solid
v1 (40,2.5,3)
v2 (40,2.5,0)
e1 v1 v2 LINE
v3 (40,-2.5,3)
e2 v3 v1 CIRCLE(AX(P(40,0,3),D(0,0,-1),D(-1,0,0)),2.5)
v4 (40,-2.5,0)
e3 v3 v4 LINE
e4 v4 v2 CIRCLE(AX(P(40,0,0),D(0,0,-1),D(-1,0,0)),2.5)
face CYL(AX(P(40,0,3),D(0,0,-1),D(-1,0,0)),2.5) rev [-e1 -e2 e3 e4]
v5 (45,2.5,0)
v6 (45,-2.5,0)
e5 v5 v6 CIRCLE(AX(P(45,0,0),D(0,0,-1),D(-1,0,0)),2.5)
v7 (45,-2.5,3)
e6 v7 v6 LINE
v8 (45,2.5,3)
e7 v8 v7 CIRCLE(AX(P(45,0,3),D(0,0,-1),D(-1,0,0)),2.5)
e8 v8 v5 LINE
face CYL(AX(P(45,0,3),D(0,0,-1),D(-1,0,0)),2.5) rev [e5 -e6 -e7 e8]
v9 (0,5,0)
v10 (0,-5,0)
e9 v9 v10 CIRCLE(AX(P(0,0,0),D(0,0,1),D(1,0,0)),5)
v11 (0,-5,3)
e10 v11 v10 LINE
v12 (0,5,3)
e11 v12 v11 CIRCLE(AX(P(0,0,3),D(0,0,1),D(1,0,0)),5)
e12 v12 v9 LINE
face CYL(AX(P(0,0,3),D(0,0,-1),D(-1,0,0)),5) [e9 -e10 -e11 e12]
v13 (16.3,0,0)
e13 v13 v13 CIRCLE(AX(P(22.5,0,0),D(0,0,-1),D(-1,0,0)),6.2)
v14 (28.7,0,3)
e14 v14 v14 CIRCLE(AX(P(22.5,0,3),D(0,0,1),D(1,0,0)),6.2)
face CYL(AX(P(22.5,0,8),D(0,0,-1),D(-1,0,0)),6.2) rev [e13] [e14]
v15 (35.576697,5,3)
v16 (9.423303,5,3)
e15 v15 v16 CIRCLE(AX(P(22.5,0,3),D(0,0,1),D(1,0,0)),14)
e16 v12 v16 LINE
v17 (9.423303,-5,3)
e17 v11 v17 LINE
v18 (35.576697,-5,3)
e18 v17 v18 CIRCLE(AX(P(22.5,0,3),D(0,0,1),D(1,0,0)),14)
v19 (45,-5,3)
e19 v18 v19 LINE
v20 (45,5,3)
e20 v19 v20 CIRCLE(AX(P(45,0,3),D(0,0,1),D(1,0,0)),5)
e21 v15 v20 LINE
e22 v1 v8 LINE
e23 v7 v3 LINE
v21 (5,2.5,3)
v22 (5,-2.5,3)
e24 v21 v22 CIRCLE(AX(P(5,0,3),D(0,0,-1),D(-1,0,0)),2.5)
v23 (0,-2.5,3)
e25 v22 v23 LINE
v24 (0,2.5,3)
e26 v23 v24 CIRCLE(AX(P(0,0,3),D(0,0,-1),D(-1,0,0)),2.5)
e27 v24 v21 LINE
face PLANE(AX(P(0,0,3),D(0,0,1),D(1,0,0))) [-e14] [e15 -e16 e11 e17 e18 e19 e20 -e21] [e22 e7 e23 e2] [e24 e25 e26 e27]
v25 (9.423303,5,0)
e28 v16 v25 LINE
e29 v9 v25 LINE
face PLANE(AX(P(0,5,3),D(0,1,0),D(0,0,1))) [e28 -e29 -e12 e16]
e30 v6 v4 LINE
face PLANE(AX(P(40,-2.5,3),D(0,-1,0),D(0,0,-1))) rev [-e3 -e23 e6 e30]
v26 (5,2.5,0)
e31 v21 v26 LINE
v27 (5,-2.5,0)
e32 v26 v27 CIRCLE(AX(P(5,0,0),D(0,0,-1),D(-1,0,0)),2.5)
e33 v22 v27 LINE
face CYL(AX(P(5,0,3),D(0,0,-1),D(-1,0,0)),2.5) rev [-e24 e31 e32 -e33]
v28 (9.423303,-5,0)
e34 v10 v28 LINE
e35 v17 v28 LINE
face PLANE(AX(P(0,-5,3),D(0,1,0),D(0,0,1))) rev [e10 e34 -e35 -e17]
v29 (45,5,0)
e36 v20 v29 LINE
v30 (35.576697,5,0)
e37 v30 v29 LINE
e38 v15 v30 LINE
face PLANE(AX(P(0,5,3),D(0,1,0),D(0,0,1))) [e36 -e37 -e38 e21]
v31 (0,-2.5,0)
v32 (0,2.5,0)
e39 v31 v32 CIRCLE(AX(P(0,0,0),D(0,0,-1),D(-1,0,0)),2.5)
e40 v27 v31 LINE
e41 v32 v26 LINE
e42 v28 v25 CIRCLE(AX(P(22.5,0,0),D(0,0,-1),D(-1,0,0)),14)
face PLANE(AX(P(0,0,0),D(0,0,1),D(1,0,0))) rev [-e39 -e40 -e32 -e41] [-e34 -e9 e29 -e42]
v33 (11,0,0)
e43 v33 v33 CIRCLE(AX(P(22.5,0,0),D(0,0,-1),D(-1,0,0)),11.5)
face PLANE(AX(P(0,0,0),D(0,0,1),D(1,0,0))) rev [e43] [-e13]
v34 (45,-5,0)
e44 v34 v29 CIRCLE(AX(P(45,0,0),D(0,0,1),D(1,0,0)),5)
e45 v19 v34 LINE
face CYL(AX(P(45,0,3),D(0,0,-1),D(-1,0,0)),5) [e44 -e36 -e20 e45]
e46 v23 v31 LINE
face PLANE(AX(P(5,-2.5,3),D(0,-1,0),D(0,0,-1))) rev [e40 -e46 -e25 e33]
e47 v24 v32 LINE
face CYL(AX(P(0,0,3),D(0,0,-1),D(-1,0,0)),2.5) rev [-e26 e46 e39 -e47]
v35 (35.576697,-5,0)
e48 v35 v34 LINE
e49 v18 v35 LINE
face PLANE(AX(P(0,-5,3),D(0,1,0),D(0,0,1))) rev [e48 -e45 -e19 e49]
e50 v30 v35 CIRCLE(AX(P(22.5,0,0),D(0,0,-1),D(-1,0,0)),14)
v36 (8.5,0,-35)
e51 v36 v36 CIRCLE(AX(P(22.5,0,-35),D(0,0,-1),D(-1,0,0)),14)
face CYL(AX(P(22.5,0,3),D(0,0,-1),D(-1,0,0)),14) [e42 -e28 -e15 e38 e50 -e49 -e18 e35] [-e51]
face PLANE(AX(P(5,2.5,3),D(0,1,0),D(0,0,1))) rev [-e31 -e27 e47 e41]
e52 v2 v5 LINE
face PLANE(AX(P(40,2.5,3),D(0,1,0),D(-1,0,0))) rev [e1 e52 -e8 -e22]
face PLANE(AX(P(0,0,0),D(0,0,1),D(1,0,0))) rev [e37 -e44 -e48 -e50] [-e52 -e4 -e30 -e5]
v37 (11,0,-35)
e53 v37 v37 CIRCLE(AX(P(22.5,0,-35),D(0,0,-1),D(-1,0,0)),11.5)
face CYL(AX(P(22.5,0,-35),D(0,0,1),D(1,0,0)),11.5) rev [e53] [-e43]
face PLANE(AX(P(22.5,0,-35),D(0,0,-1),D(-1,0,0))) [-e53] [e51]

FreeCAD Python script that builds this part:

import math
import FreeCAD as App
import Part
import Sketcher

V = App.Vector
Q = App.Units.Quantity

doc = App.newDocument("Part")
body = doc.addObject("PartDesign::Body", "Body")

sketch1 = body.newObject("Sketcher::SketchObject", "Sketch")
sketch1.AttachmentSupport = (doc.getObject("XY_Plane"), [""])
sketch1.MapMode = "FlatFace"
sketch1.addGeometry(Part.ArcOfCircle(Part.Circle(V(45, 0, 0), V(0, 0, 1), 5), math.radians(-90), math.radians(90)), False)
sketch1.addGeometry(Part.LineSegment(V(45, 5, 0), V(35.576697, 5, 0)), False)
sketch1.addGeometry(Part.ArcOfCircle(Part.Circle(V(22.5, 0, 0), V(0, 0, 1), 14), math.radians(20.924832), math.radians(159.075168)), False)
sketch1.addGeometry(Part.LineSegment(V(9.423303, 5, 0), V(0, 5, 0)), False)
sketch1.addGeometry(Part.ArcOfCircle(Part.Circle(V(0, 0, 0), V(0, 0, 1), 5), math.radians(90), math.radians(270)), False)
sketch1.addGeometry(Part.LineSegment(V(0, -5, 0), V(9.423303, -5, 0)), False)
sketch1.addGeometry(Part.ArcOfCircle(Part.Circle(V(22.5, 0, 0), V(0, 0, 1), 14), math.radians(-159.075168), math.radians(-20.924832)), False)
sketch1.addGeometry(Part.LineSegment(V(35.576697, -5, 0), V(45, -5, 0)), False)
sketch1.addConstraint(Sketcher.Constraint("Tangent", 0, 2, 1, 1))
sketch1.addConstraint(Sketcher.Constraint("Coincident", 1, 2, 2, 1))
sketch1.addConstraint(Sketcher.Constraint("Coincident", 2, 2, 3, 1))
sketch1.addConstraint(Sketcher.Constraint("Tangent", 3, 2, 4, 1))
sketch1.addConstraint(Sketcher.Constraint("Tangent", 4, 2, 5, 1))
sketch1.addConstraint(Sketcher.Constraint("Coincident", 5, 2, 6, 1))
sketch1.addConstraint(Sketcher.Constraint("Coincident", 6, 2, 7, 1))
sketch1.addConstraint(Sketcher.Constraint("Tangent", 7, 2, 0, 1))
sketch1.addConstraint(Sketcher.Constraint("Horizontal", 1))
sketch1.addConstraint(Sketcher.Constraint("Horizontal", 3))
sketch1.addConstraint(Sketcher.Constraint("Horizontal", 5))
sketch1.addConstraint(Sketcher.Constraint("Horizontal", 7))
sketch1.addConstraint(Sketcher.Constraint("Coincident", 4, 3, -1, 1))
sketch1.addConstraint(Sketcher.Constraint("Coincident", 6, 3, 2, 3))
sketch1.addConstraint(Sketcher.Constraint("Equal", 0, 4))
sketch1.addConstraint(Sketcher.Constraint("Equal", 2, 6))
sketch1.addConstraint(Sketcher.Constraint("Symmetric", 1, 2, 6, 2, -1))
sketch1.addConstraint(Sketcher.Constraint("Equal", 1, 3))
sketch1.addConstraint(Sketcher.Constraint("Radius", 0, Q("5 mm")))
sketch1.addConstraint(Sketcher.Constraint("Radius", 2, Q("14 mm")))
sketch1.addConstraint(Sketcher.Constraint("DistanceX", -1, 1, 0, 3, Q("45 mm")))
pad1 = body.newObject("PartDesign::Pad", "Pad")
pad1.Profile = sketch1
pad1.Length = 3

sketch2 = body.newObject("Sketcher::SketchObject", "Sketch001")
sketch2.AttachmentSupport = (doc.getObject("XY_Plane"), [""])
sketch2.MapMode = "FlatFace"
sketch2.addGeometry(Part.Circle(V(22.5, 0, 0), V(0, 0, 1), 6.2), False)
sketch2.addConstraint(Sketcher.Constraint("PointOnObject", 0, 3, -1))
sketch2.addConstraint(Sketcher.Constraint("Diameter", 0, Q("12.4 mm")))
sketch2.addConstraint(Sketcher.Constraint("DistanceX", -1, 1, 0, 3, Q("22.5 mm")))
pocket1 = body.newObject("PartDesign::Pocket", "Pocket")
pocket1.Profile = sketch2
pocket1.Length = 8
pocket1.Reversed = True

sketch3 = body.newObject("Sketcher::SketchObject", "Sketch002")
sketch3.AttachmentSupport = (doc.getObject("XY_Plane"), [""])
sketch3.MapMode = "FlatFace"
sketch3.AttachmentOffset = App.Placement(V(0, 0, -35), App.Rotation())
sketch3.addGeometry(Part.Circle(V(22.5, 0, 0), V(0, 0, 1), 14), False)
sketch3.addGeometry(Part.Circle(V(22.5, 0, 0), V(0, 0, 1), 11.5), False)
sketch3.addConstraint(Sketcher.Constraint("Coincident", 1, 3, 0, 3))
sketch3.addConstraint(Sketcher.Constraint("PointOnObject", 0, 3, -1))
sketch3.addConstraint(Sketcher.Constraint("Diameter", 0, Q("28 mm")))
sketch3.addConstraint(Sketcher.Constraint("Diameter", 1, Q("23 mm")))
sketch3.addConstraint(Sketcher.Constraint("DistanceX", -1, 1, 0, 3, Q("22.5 mm")))
pad2 = body.newObject("PartDesign::Pad", "Pad001")
pad2.Profile = sketch3
pad2.Length = 35

sketch4 = body.newObject("Sketcher::SketchObject", "Sketch003")
sketch4.AttachmentSupport = (doc.getObject("XY_Plane"), [""])
sketch4.MapMode = "FlatFace"
sketch4.addGeometry(Part.LineSegment(V(45, -2.5, 0), V(40, -2.5, 0)), False)
sketch4.addGeometry(Part.ArcOfCircle(Part.Circle(V(40, 0, 0), V(0, 0, 1), 2.5), math.radians(90), math.radians(270)), False)
sketch4.addGeometry(Part.LineSegment(V(40, 2.5, 0), V(45, 2.5, 0)), False)
sketch4.addGeometry(Part.ArcOfCircle(Part.Circle(V(45, 0, 0), V(0, 0, 1), 2.5), math.radians(-90), math.radians(90)), False)
sketch4.addGeometry(Part.LineSegment(V(0, 2.5, 0), V(5, 2.5, 0)), False)
sketch4.addGeometry(Part.ArcOfCircle(Part.Circle(V(5, 0, 0), V(0, 0, 1), 2.5), math.radians(-90), math.radians(90)), False)
sketch4.addGeometry(Part.LineSegment(V(5, -2.5, 0), V(0, -2.5, 0)), False)
sketch4.addGeometry(Part.ArcOfCircle(Part.Circle(V(0, 0, 0), V(0, 0, 1), 2.5), math.radians(90), math.radians(270)), False)
sketch4.addConstraint(Sketcher.Constraint("Tangent", 0, 2, 1, 2))
sketch4.addConstraint(Sketcher.Constraint("Tangent", 1, 1, 2, 1))
sketch4.addConstraint(Sketcher.Constraint("Tangent", 2, 2, 3, 2))
sketch4.addConstraint(Sketcher.Constraint("Tangent", 3, 1, 0, 1))
sketch4.addConstraint(Sketcher.Constraint("Tangent", 4, 2, 5, 2))
sketch4.addConstraint(Sketcher.Constraint("Tangent", 5, 1, 6, 1))
sketch4.addConstraint(Sketcher.Constraint("Tangent", 6, 2, 7, 2))
sketch4.addConstraint(Sketcher.Constraint("Tangent", 7, 1, 4, 1))
sketch4.addConstraint(Sketcher.Constraint("Horizontal", 0))
sketch4.addConstraint(Sketcher.Constraint("Horizontal", 2))
sketch4.addConstraint(Sketcher.Constraint("Horizontal", 4))
sketch4.addConstraint(Sketcher.Constraint("Horizontal", 6))
sketch4.addConstraint(Sketcher.Constraint("Coincident", 7, 3, -1, 1))
sketch4.addConstraint(Sketcher.Constraint("Equal", 3, 5))
sketch4.addConstraint(Sketcher.Constraint("PointOnObject", 1, 3, -1))
sketch4.addConstraint(Sketcher.Constraint("Equal", 2, 4))
sketch4.addConstraint(Sketcher.Constraint("Radius", 1, Q("2.5 mm")))
sketch4.addConstraint(Sketcher.Constraint("DistanceX", 0, 2, 0, 1, Q("5 mm")))
sketch4.addConstraint(Sketcher.Constraint("DistanceX", -1, 1, 1, 3, Q("40 mm")))
pocket2 = body.newObject("PartDesign::Pocket", "Pocket001")
pocket2.Profile = sketch4
pocket2.Type = "ThroughAll"
pocket2.Reversed = True

doc.recompute()
